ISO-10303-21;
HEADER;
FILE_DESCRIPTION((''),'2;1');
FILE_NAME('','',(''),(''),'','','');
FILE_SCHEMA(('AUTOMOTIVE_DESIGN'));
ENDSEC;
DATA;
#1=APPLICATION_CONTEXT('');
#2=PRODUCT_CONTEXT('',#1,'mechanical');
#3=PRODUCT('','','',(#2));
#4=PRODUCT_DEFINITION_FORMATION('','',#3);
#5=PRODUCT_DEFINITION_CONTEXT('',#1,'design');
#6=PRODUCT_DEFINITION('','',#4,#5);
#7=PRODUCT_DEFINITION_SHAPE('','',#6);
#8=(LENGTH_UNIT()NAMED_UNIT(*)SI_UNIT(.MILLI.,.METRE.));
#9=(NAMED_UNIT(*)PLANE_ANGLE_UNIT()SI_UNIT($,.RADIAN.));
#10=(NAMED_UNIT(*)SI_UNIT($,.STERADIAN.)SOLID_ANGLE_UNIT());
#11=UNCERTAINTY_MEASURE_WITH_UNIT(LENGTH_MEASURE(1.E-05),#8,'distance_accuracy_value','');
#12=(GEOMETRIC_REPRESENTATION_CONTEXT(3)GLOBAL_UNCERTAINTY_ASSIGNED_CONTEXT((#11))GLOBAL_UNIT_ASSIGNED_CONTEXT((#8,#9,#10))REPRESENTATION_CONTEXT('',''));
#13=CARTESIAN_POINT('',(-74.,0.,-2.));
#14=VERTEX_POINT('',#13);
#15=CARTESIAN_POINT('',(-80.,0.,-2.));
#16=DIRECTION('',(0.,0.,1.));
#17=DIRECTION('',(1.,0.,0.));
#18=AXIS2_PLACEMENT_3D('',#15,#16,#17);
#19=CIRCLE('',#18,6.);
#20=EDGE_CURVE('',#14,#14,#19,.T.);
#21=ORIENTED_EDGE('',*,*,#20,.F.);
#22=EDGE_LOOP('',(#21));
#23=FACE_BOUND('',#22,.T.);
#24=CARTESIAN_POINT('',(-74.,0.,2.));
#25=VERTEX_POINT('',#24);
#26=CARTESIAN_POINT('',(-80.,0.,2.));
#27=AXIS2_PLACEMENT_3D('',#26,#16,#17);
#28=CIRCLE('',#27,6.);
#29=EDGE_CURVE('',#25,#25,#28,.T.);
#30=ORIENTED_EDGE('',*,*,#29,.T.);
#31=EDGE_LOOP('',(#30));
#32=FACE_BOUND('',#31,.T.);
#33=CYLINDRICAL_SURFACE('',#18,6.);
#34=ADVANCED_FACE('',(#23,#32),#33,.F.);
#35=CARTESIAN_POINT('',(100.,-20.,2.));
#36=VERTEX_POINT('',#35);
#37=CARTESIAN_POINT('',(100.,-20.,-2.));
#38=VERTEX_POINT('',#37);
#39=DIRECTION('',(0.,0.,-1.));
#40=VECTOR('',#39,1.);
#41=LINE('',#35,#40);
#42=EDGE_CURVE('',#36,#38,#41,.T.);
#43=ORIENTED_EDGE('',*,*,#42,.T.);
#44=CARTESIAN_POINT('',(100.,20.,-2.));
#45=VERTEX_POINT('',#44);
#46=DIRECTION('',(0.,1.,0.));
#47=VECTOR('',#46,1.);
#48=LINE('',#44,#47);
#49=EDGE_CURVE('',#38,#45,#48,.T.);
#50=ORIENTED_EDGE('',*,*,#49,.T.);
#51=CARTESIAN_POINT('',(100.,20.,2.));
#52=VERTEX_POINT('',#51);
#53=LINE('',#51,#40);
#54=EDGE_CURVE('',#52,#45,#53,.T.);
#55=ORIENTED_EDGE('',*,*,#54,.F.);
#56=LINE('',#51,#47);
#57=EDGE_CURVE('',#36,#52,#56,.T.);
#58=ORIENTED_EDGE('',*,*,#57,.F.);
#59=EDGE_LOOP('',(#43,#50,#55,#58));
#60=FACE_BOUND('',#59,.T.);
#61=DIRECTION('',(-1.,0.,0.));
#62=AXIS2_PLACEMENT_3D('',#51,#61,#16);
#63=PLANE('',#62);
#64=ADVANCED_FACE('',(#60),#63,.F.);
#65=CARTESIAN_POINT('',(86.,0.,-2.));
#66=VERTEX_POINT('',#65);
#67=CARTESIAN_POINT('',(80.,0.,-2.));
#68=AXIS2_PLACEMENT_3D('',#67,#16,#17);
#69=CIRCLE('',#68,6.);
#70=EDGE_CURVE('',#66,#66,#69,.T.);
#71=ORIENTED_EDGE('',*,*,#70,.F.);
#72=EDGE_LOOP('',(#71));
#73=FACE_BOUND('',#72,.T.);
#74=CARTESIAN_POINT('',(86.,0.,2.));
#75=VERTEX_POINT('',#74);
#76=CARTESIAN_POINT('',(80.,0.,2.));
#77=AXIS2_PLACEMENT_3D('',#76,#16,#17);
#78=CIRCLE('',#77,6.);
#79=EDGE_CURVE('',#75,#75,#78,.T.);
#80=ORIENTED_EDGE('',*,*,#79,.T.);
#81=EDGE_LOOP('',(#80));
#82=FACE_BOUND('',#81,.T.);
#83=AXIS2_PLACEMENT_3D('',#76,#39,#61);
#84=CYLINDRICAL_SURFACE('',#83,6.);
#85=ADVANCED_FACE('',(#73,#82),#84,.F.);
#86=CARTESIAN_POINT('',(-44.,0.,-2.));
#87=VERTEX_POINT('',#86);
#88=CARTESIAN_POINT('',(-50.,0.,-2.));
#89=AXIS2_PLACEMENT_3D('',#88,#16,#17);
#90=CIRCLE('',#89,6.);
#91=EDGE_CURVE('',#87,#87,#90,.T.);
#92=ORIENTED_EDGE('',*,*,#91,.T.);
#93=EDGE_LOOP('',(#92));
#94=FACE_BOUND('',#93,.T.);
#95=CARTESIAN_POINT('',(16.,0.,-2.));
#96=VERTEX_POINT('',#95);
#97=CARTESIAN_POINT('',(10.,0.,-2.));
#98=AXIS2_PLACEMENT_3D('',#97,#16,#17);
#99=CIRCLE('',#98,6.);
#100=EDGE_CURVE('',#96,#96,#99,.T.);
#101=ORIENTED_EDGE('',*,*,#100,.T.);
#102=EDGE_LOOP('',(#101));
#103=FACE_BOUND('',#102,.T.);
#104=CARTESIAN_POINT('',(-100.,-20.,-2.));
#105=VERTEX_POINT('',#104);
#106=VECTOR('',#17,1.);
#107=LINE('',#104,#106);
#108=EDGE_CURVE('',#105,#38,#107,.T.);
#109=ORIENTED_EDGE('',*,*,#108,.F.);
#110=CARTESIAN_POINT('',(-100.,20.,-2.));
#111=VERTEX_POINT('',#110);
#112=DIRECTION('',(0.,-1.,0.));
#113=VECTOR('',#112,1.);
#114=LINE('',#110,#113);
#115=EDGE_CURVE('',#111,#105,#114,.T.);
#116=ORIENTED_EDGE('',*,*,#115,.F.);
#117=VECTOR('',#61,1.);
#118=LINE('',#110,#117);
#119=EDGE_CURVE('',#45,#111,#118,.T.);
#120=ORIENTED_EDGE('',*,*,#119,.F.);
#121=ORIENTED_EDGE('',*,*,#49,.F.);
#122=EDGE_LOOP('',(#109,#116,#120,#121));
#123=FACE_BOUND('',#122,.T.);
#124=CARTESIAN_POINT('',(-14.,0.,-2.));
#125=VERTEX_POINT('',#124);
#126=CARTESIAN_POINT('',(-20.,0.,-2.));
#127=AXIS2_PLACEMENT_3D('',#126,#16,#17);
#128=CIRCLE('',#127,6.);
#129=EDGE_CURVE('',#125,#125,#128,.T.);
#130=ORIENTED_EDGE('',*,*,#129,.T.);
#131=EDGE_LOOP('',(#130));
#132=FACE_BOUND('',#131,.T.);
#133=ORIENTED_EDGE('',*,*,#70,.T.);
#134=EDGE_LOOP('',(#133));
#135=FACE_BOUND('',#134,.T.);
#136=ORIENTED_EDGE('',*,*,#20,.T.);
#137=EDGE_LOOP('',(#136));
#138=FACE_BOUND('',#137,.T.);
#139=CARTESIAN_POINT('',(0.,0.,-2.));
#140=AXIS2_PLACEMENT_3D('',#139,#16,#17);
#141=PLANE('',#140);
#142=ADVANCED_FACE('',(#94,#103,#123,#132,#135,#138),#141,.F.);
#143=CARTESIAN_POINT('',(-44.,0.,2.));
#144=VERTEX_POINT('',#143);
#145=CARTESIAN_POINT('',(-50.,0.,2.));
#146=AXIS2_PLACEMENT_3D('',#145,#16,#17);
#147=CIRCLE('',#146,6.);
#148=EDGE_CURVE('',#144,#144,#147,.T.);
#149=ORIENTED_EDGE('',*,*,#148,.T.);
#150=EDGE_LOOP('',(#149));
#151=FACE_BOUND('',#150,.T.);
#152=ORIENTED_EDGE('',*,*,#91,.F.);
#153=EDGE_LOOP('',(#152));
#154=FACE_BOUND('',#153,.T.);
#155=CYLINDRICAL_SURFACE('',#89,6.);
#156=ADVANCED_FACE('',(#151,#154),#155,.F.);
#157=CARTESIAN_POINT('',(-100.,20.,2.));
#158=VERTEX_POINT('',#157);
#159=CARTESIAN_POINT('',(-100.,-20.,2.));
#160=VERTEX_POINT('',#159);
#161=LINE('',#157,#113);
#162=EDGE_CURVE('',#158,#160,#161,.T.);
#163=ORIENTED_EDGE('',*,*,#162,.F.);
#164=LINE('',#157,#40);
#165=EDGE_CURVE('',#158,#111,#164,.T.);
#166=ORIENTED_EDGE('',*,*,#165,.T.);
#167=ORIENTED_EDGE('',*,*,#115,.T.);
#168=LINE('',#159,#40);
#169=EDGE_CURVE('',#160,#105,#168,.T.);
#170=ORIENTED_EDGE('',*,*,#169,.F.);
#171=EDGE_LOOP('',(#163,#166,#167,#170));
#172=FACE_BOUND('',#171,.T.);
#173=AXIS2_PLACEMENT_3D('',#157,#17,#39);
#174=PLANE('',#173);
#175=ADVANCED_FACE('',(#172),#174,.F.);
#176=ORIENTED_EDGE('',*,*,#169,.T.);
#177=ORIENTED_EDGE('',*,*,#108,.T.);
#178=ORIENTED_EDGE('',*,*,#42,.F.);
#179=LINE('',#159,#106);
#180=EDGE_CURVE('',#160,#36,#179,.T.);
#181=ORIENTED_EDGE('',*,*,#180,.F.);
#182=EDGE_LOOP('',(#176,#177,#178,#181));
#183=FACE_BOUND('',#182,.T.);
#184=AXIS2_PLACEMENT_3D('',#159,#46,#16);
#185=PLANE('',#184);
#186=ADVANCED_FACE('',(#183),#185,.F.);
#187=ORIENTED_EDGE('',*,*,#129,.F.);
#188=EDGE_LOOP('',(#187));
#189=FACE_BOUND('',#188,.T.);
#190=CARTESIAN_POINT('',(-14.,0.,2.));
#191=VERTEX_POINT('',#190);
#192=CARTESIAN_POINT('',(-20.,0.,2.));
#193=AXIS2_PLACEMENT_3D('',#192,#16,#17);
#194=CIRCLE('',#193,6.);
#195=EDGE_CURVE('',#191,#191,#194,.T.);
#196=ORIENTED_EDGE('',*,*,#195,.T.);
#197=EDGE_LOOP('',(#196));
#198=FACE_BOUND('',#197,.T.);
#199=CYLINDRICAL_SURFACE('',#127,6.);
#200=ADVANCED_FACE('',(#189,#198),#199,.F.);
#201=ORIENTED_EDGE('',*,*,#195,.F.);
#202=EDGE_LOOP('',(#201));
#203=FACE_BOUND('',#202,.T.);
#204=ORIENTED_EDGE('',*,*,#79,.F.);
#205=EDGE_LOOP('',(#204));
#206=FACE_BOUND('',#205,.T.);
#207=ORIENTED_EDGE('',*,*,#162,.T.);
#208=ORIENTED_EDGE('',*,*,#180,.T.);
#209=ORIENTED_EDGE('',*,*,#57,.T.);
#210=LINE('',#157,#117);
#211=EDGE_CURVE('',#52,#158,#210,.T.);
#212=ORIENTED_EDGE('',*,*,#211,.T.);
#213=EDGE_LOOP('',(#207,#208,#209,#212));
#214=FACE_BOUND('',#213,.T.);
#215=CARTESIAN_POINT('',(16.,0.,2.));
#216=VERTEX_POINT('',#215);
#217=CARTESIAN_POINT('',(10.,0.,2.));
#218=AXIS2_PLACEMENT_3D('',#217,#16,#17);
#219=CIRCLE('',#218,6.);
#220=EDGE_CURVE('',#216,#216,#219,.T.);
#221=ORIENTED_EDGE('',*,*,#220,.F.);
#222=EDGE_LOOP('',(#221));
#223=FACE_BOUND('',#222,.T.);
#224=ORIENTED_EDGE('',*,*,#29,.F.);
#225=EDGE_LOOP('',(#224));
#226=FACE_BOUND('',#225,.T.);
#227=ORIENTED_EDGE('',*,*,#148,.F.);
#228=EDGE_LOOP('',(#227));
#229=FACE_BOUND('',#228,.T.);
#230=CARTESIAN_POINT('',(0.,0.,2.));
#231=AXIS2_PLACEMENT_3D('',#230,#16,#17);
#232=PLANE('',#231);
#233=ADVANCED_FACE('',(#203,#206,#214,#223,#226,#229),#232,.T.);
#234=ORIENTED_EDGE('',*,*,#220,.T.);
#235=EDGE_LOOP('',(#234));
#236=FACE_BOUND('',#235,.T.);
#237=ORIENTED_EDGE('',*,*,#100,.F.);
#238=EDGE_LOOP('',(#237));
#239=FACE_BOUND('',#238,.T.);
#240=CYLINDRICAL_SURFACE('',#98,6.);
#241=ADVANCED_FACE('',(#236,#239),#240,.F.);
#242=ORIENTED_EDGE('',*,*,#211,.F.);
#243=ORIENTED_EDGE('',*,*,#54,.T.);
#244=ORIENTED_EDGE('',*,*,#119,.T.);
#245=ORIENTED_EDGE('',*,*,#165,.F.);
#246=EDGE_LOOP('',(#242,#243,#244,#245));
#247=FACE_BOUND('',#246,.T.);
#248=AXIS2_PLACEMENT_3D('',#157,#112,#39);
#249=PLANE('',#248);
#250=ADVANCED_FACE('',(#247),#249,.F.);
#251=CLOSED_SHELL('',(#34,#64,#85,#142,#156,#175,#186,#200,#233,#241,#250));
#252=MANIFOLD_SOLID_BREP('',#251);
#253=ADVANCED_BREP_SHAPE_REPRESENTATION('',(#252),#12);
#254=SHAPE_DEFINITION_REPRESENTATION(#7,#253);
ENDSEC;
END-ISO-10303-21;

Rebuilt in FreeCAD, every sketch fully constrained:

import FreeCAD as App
import Part
import Sketcher

V = App.Vector


def add_polygon(sketch, points):
    """Adds a closed chain of lines whose ends are joined by coincident constraints."""
    first, n = sketch.GeometryCount, len(points)
    for a, b in zip(points, points[1:] + points[:1]):
        sketch.addGeometry(Part.LineSegment(App.Vector(*a, 0), App.Vector(*b, 0)), False)
    for i in range(n):
        sketch.addConstraint(Sketcher.Constraint("Coincident", first + i, 2, first + (i + 1) % n, 1))

doc = App.newDocument("Part")
body = doc.addObject("PartDesign::Body", "Body")

sketch1 = doc.addObject("Sketcher::SketchObject", "Sketch")
body.addObject(sketch1)
sketch1.AttachmentSupport = (doc.XY_Plane, [""])
sketch1.MapMode = "FlatFace"
add_polygon(sketch1, [(-100, 20), (-100, -20), (100, -20), (100, 20)])
sketch1.addGeometry(Part.Circle(V(80, 0, 0), V(0, 0, 1), 6), False)
sketch1.addConstraint([
    Sketcher.Constraint("Vertical", 0),
    Sketcher.Constraint("Horizontal", 1),
    Sketcher.Constraint("Vertical", 2),
    Sketcher.Constraint("Horizontal", 3),
    Sketcher.Constraint("Symmetric", 0, 2, 2, 2, -1, 1),
    Sketcher.Constraint("PointOnObject", 4, 3, -1),
    Sketcher.Constraint("Diameter", 4, 12.0),
    Sketcher.Constraint("DistanceX", 1, 1, 1, 2, 200.0),
    Sketcher.Constraint("DistanceY", 0, 2, 0, 1, 40.0),
    Sketcher.Constraint("DistanceX", -1, 1, 4, 3, 80.0),
])
pad1 = doc.addObject("PartDesign::Pad", "Pad")
body.addObject(pad1)
pad1.Profile = sketch1
pad1.Length = 4
pad1.Midplane = True

sketch2 = doc.addObject("Sketcher::SketchObject", "Sketch001")
body.addObject(sketch2)
sketch2.AttachmentSupport = (doc.XY_Plane, [""])
sketch2.MapMode = "FlatFace"
sketch2.AttachmentOffset = App.Placement(V(0, 0, 2), App.Rotation())
sketch2.addGeometry(Part.Circle(V(-80, 0, 0), V(0, 0, 1), 6), False)
sketch2.addConstraint([
    Sketcher.Constraint("PointOnObject", 0, 3, -1),
    Sketcher.Constraint("Diameter", 0, 12.0),
    Sketcher.Constraint("DistanceX", 0, 3, -1, 1, 80.0),
])
pocket1 = doc.addObject("PartDesign::Pocket", "Pocket")
body.addObject(pocket1)
pocket1.Profile = sketch2
pocket1.Type = "ThroughAll"
doc.recompute()

linearpattern = doc.addObject("PartDesign::LinearPattern", "LinearPattern")
body.addObject(linearpattern)
linearpattern.Originals = [pocket1]
linearpattern.Direction = (doc.X_Axis, [""])
linearpattern.Mode = "offset"
linearpattern.Offset = 30
linearpattern.Occurrences = 4
body.Tip = linearpattern

doc.recompute()
